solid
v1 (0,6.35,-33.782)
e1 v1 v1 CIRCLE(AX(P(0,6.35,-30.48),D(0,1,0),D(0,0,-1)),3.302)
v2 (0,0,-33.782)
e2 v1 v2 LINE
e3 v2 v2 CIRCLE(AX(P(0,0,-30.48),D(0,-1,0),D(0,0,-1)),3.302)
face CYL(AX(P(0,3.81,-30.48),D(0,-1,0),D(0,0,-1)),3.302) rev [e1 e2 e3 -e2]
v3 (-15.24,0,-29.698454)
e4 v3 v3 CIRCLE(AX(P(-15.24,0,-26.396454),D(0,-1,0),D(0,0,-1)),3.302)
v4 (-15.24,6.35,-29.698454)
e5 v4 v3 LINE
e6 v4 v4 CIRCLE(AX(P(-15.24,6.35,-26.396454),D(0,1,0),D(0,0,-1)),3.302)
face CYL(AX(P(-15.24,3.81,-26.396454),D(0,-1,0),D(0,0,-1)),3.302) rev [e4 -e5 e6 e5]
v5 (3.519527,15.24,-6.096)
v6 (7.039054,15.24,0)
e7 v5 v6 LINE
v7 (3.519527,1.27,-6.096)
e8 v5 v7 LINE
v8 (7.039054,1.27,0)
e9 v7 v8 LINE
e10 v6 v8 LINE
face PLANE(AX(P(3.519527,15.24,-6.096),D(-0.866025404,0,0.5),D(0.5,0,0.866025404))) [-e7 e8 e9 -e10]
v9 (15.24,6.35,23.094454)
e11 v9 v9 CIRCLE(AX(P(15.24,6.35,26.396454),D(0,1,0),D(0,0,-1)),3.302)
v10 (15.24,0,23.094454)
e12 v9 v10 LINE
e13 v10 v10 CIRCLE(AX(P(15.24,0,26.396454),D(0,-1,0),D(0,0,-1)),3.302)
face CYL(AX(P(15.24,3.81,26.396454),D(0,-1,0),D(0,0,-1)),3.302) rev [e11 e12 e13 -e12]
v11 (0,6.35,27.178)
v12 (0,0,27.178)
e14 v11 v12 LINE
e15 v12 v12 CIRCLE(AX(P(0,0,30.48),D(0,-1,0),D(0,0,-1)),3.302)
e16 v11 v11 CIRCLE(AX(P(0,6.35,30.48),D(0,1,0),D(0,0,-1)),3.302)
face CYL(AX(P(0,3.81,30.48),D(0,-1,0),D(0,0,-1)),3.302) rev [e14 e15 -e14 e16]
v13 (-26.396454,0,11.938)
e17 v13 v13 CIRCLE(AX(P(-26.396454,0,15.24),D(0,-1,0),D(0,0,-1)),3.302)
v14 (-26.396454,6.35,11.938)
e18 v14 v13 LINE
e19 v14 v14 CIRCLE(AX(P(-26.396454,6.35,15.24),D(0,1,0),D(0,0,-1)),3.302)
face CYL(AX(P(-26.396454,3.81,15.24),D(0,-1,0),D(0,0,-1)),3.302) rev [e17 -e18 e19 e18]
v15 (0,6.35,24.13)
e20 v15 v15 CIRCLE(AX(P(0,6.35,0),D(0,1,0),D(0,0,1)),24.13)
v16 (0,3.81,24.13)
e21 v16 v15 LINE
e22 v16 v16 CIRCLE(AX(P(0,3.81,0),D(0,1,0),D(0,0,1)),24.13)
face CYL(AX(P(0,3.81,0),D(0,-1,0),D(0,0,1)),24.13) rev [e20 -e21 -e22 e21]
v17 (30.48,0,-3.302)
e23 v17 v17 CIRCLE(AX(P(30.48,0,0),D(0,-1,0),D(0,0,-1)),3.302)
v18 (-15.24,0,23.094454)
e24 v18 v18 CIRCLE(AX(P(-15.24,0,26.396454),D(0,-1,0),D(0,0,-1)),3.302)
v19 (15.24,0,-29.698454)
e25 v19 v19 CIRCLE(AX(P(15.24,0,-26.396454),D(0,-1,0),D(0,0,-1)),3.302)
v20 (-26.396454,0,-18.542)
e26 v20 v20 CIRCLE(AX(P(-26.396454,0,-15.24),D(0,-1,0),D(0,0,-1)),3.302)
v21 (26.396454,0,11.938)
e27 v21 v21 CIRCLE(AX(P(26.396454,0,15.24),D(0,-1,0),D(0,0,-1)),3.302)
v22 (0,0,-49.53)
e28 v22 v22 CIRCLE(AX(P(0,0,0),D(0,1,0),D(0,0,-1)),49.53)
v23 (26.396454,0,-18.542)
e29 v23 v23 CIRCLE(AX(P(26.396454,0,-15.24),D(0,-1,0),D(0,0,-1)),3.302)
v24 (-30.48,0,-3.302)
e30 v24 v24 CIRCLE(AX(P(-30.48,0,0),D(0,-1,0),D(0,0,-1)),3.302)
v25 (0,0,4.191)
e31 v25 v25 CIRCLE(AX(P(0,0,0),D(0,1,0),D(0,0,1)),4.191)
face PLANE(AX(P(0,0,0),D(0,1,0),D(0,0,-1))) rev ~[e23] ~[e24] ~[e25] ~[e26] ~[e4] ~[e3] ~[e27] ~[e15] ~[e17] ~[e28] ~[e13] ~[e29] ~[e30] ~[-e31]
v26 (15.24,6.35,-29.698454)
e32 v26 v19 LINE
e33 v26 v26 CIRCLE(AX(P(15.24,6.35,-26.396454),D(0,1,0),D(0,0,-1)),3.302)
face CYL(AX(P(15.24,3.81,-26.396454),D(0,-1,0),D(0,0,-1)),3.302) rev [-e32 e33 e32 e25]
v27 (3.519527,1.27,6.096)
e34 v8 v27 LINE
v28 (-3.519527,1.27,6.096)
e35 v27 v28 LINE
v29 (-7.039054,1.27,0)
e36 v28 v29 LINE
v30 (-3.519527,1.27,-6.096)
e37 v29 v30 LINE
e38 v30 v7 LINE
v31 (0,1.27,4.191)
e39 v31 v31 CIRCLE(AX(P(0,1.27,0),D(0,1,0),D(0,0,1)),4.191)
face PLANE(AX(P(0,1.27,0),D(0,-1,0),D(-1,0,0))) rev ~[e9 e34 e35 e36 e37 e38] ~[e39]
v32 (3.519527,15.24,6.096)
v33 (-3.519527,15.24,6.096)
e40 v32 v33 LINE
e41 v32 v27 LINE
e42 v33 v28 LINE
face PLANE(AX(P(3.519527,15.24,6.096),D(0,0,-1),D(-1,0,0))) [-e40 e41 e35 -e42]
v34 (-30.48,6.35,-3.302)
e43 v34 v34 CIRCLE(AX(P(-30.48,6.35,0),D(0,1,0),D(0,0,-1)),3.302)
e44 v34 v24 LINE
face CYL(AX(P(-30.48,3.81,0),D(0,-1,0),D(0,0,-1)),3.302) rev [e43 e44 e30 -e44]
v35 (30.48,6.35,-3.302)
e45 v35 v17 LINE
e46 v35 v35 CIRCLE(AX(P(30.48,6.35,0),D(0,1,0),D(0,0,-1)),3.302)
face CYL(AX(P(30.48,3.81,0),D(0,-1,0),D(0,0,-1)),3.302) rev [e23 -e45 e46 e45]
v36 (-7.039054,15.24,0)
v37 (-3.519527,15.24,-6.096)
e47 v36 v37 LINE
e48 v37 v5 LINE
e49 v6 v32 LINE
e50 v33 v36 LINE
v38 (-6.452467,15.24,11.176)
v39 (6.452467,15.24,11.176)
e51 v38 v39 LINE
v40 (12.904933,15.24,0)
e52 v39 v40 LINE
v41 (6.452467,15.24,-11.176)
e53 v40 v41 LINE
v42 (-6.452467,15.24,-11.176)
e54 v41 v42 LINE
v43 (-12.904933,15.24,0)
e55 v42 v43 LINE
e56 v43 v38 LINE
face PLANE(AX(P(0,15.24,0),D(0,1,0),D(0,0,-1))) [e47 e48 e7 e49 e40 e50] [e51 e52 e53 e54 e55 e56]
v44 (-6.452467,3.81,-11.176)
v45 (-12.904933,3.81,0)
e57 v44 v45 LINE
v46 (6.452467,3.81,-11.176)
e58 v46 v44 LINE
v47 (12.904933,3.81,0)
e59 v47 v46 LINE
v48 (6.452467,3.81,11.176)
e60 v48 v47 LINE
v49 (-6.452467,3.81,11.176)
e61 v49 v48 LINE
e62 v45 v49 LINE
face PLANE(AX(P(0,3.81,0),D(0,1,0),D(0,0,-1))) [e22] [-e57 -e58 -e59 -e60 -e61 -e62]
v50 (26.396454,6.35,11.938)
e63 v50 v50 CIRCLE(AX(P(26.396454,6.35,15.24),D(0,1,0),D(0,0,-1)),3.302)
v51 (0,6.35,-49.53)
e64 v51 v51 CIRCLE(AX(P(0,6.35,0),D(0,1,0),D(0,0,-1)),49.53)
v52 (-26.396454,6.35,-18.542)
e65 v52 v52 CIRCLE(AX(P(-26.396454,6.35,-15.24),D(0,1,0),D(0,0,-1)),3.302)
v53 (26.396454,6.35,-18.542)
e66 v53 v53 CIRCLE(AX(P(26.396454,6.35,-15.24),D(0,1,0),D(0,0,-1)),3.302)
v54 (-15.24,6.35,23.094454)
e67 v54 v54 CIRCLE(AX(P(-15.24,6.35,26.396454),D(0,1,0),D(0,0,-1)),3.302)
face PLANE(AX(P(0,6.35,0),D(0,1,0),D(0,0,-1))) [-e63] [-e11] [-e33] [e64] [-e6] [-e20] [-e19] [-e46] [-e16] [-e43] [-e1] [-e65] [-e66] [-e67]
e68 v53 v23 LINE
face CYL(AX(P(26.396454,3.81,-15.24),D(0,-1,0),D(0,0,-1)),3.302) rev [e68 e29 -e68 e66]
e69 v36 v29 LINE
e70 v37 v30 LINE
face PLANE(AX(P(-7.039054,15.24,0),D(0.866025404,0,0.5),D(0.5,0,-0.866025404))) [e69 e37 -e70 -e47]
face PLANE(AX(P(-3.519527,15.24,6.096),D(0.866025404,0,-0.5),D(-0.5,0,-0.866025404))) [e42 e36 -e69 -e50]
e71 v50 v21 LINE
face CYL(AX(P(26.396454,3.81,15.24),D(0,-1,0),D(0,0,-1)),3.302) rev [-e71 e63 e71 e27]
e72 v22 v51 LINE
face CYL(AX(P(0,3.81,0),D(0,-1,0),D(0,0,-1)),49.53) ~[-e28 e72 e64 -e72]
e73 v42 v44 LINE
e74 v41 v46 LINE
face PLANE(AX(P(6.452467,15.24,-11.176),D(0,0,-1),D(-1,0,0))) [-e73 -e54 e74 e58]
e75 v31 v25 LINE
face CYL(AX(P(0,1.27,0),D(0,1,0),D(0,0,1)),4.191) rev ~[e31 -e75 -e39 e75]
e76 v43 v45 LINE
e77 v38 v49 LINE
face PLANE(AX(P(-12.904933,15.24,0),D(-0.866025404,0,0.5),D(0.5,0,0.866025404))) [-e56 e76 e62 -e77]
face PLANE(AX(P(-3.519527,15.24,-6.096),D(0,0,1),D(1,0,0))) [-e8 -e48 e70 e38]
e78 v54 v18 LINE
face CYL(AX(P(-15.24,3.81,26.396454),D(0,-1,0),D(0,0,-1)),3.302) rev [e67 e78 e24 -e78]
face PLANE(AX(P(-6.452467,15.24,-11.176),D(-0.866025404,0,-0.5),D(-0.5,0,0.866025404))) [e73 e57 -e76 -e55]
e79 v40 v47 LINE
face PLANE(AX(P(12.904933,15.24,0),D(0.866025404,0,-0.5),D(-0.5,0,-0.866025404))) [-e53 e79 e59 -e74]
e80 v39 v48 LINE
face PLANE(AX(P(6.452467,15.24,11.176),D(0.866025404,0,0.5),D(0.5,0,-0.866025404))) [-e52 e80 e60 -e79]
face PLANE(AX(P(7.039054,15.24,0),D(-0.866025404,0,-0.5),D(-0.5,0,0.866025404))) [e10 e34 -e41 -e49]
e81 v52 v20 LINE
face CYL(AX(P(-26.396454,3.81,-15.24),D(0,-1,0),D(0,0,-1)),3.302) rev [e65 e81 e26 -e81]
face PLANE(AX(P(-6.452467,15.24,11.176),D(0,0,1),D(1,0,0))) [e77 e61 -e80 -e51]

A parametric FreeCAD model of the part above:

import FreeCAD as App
import Part
import Sketcher
from FreeCAD import Vector
Q = App.Units.Quantity


def add_polygon(sketch, points):
    """Adds a closed chain of lines whose ends are joined by coincident constraints."""
    first, n = sketch.GeometryCount, len(points)
    for a, b in zip(points, points[1:] + points[:1]):
        sketch.addGeometry(Part.LineSegment(App.Vector(*a, 0), App.Vector(*b, 0)), False)
    for i in range(n):
        sketch.addConstraint(Sketcher.Constraint("Coincident", first + i, 2, first + (i + 1) % n, 1))

doc = App.newDocument("Part")
params = doc.addObject("Spreadsheet::Sheet", "Params")
for row, (alias, value) in enumerate([
    ("sketch1_diameter", "3.9 in"),
    ("pad1_length", "0.6 in"),
    ("pocket1_length", "0.55 in"),
    ("sketch3_diameter", "0.33 in"),
    ("sketch4_diameter", "3.1 in"),
    ("pocket3_length", "0.45 in"),
    ("sketch5_diameter", "0.26 in"),
    ("sketch6_diameter", "3.9 in"),
    ("sketch6_diameter2", "3.1 in"),
    ("pocket5_length", "0.45 in"),
    ("sketch7_diameter", "3.9 in"),
    ("sketch7_diameter2", "1.9 in"),
    ("sketch7_diameter3", "0.26 in"),
    ("pad2_length", "0.1 in"),
], start=1):
    params.set(f"A{row}", alias)
    params.set(f"B{row}", "=" + value)
    params.setAlias(f"B{row}", alias)

body = doc.addObject("PartDesign::Body", "Body")

# Sketch on XZ plane
sketch1 = body.newObject("Sketcher::SketchObject", "Sketch")
sketch1.AttachmentSupport = (doc.getObject("XZ_Plane"), [""])
sketch1.MapMode = "FlatFace"
sketch1.addGeometry(Part.Circle(Vector(0, 0, 0), Vector(0, 0, 1), 49.53), False)
sketch1.addConstraint([
    Sketcher.Constraint("Coincident", 0, 3, -1, 1),
    Sketcher.Constraint("Diameter", 0, Q("3.9 in")),
])
sketch1.setExpression("Constraints[1]", "Params.sketch1_diameter")
pad1 = body.newObject("PartDesign::Pad", "Pad")
pad1.Profile = sketch1
pad1.setExpression("Length", "Params.pad1_length")
pad1.Reversed = True

# Sketch on XZ plane
sketch2 = body.newObject("Sketcher::SketchObject", "Sketch001")
sketch2.AttachmentSupport = (doc.getObject("XZ_Plane"), [""])
sketch2.MapMode = "FlatFace"
sketch2.AttachmentOffset = App.Placement(Vector(0, 0, -0.6 * 25.4), App.Rotation())
add_polygon(sketch2, [(3.519527, -6.096), (-3.519527, -6.096), (-7.039054, 0), (-3.519527, 6.096), (3.519527, 6.096), (7.039054, 0)])  # lines 0-5
sketch2.addConstraint([
    Sketcher.Constraint("Horizontal", 0),
    Sketcher.Constraint("Horizontal", 3),
    Sketcher.Constraint("Symmetric", 0, 2, 3, 2, -1, 1),
    Sketcher.Constraint("Symmetric", 1, 2, 4, 2, -1, 1),
    Sketcher.Constraint("PointOnObject", 1, 2, -1),
    Sketcher.Constraint("Parallel", 2, 5),
    Sketcher.Constraint("Vertical", 0, 2, 2, 2),
    Sketcher.Constraint("Angle", 1, Q("120 deg")),
    Sketcher.Constraint("DistanceY", 0, 2, -1, 1, Q("0.24 in")),
    Sketcher.Constraint("DistanceX", 0, 2, 0, 1, Q("7.039054 mm")),
])
pocket1 = body.newObject("PartDesign::Pocket", "Pocket")
pocket1.Profile = sketch2
pocket1.setExpression("Length", "Params.pocket1_length")
pocket1.Reversed = True

# Sketch on XZ plane
sketch3 = body.newObject("Sketcher::SketchObject", "Sketch002")
sketch3.AttachmentSupport = (doc.getObject("XZ_Plane"), [""])
sketch3.MapMode = "FlatFace"
sketch3.AttachmentOffset = App.Placement(Vector(0, 0, -0.05 * 25.4), App.Rotation())
sketch3.addGeometry(Part.Circle(Vector(0, 0, 0), Vector(0, 0, 1), 4.191), False)
sketch3.addConstraint([
    Sketcher.Constraint("Coincident", 0, 3, -1, 1),
    Sketcher.Constraint("Diameter", 0, Q("0.33 in")),
])
sketch3.setExpression("Constraints[1]", "Params.sketch3_diameter")
pocket2 = body.newObject("PartDesign::Pocket", "Pocket001")
pocket2.Profile = sketch3
pocket2.Type = "ThroughAll"
pocket2.Reversed = True

# Sketch on XZ plane
sketch4 = body.newObject("Sketcher::SketchObject", "Sketch003")
sketch4.AttachmentSupport = (doc.getObject("XZ_Plane"), [""])
sketch4.MapMode = "FlatFace"
sketch4.AttachmentOffset = App.Placement(Vector(0, 0, -0.6 * 25.4), App.Rotation())
sketch4.addGeometry(Part.Circle(Vector(0, 0, 0), Vector(0, 0, 1), 39.37), False)  # 0
add_polygon(sketch4, [(6.452467, -11.176), (12.904933, 0), (6.452467, 11.176), (-6.452467, 11.176), (-12.904933, 0), (-6.452467, -11.176)])  # lines 1-6
sketch4.addConstraint([
    Sketcher.Constraint("Horizontal", 3),
    Sketcher.Constraint("Horizontal", 6),
    Sketcher.Constraint("Coincident", 0, 3, -1, 1),
    Sketcher.Constraint("Symmetric", 1, 2, 4, 2, -1, 1),
    Sketcher.Constraint("Symmetric", 2, 2, 5, 2, -1, 1),
    Sketcher.Constraint("PointOnObject", 1, 2, -1),
    Sketcher.Constraint("Parallel", 1, 4),
    Sketcher.Constraint("Vertical", 3, 2, 5, 2),
    Sketcher.Constraint("Diameter", 0, Q("3.1 in")),
    Sketcher.Constraint("Angle", 1, Q("60 deg")),
    Sketcher.Constraint("DistanceY", -1, 1, 2, 2, Q("0.44 in")),
    Sketcher.Constraint("DistanceX", 3, 2, 1, 2, Q("19.3574 mm")),
])
sketch4.setExpression("Constraints[14]", "Params.sketch4_diameter")
pocket3 = body.newObject("PartDesign::Pocket", "Pocket002")
pocket3.Profile = sketch4
pocket3.setExpression("Length", "Params.pocket3_length")
pocket3.Reversed = True

# Sketch on XZ plane
sketch5 = body.newObject("Sketcher::SketchObject", "Sketch004")
sketch5.AttachmentSupport = (doc.getObject("XZ_Plane"), [""])
sketch5.MapMode = "FlatFace"
sketch5.addGeometry([
    Part.Circle(Vector(0, 30.48, 0), Vector(0, 0, 1), 3.302),  # 0
    Part.Circle(Vector(15.24, 26.396454, 0), Vector(0, 0, 1), 3.302),  # 1
    Part.Circle(Vector(26.396454, 15.24, 0), Vector(0, 0, 1), 3.302),  # 2
    Part.Circle(Vector(30.48, 0, 0), Vector(0, 0, 1), 3.302),  # 3
    Part.Circle(Vector(26.396454, -15.24, 0), Vector(0, 0, 1), 3.302),  # 4
    Part.Circle(Vector(15.24, -26.396454, 0), Vector(0, 0, 1), 3.302),  # 5
    Part.Circle(Vector(0, -30.48, 0), Vector(0, 0, 1), 3.302),  # 6
    Part.Circle(Vector(-15.24, -26.396454, 0), Vector(0, 0, 1), 3.302),  # 7
    Part.Circle(Vector(-26.396454, -15.24, 0), Vector(0, 0, 1), 3.302),  # 8
    Part.Circle(Vector(-30.48, 0, 0), Vector(0, 0, 1), 3.302),  # 9
    Part.Circle(Vector(-26.396454, 15.24, 0), Vector(0, 0, 1), 3.302),  # 10
    Part.Circle(Vector(-15.24, 26.396454, 0), Vector(0, 0, 1), 3.302),  # 11
], False)
sketch5.addConstraint([
    Sketcher.Constraint("Equal", 0, 1),
    Sketcher.Constraint("Equal", 1, 2),
    Sketcher.Constraint("Equal", 2, 3),
    Sketcher.Constraint("Equal", 3, 4),
    Sketcher.Constraint("Equal", 4, 5),
    Sketcher.Constraint("Equal", 5, 6),
    Sketcher.Constraint("Equal", 6, 7),
    Sketcher.Constraint("Equal", 7, 8),
    Sketcher.Constraint("Equal", 8, 9),
    Sketcher.Constraint("Equal", 9, 10),
    Sketcher.Constraint("Equal", 10, 11),
    Sketcher.Constraint("Symmetric", 0, 3, 6, 3, -1, 1),
    Sketcher.Constraint("Symmetric", 1, 3, 7, 3, -1, 1),
    Sketcher.Constraint("Symmetric", 2, 3, 8, 3, -1, 1),
    Sketcher.Constraint("Symmetric", 3, 3, 9, 3, -1, 1),
    Sketcher.Constraint("Symmetric", 4, 3, 10, 3, -1, 1),
    Sketcher.Constraint("Symmetric", 5, 3, 11, 3, -1, 1),
    Sketcher.Constraint("Symmetric", 5, 3, 7, 3, -2),
    Sketcher.Constraint("Symmetric", 4, 3, 8, 3, -2),
    Sketcher.Constraint("PointOnObject", 0, 3, -2),
    Sketcher.Constraint("PointOnObject", 3, 3, -1),
    Sketcher.Constraint("Diameter", 0, Q("0.26 in")),
    Sketcher.Constraint("DistanceY", -1, 1, 0, 3, Q("1.2 in")),
    Sketcher.Constraint("DistanceX", -1, 1, 1, 3, Q("0.6 in")),
    Sketcher.Constraint("DistanceY", -1, 1, 2, 3, Q("0.6 in")),
    Sketcher.Constraint("DistanceX", -1, 1, 3, 3, Q("1.2 in")),
    Sketcher.Constraint("DistanceY", 5, 3, 1, 3, Q("52.792909 mm")),
    Sketcher.Constraint("DistanceX", 8, 3, 4, 3, Q("52.792909 mm")),
])
sketch5.setExpression("Constraints[21]", "Params.sketch5_diameter")
pocket4 = body.newObject("PartDesign::Pocket", "Pocket003")
pocket4.Profile = sketch5
pocket4.Type = "ThroughAll"

# Sketch on XZ plane
sketch6 = body.newObject("Sketcher::SketchObject", "Sketch005")
sketch6.AttachmentSupport = (doc.getObject("XZ_Plane"), [""])
sketch6.MapMode = "FlatFace"
sketch6.AttachmentOffset = App.Placement(Vector(0, 0, -0.6 * 25.4), App.Rotation())
sketch6.addGeometry([
    Part.Circle(Vector(0, 0, 0), Vector(0, 0, 1), 49.53),
    Part.Circle(Vector(0, 0, 0), Vector(0, 0, 1), 39.37),
], False)
sketch6.addConstraint([
    Sketcher.Constraint("Coincident", 0, 3, -1, 1),
    Sketcher.Constraint("Coincident", 1, 3, -1, 1),
    Sketcher.Constraint("Diameter", 0, Q("3.9 in")),
    Sketcher.Constraint("Diameter", 1, Q("3.1 in")),
])
sketch6.setExpression("Constraints[2]", "Params.sketch6_diameter")
sketch6.setExpression("Constraints[3]", "Params.sketch6_diameter2")
pocket5 = body.newObject("PartDesign::Pocket", "Pocket004")
pocket5.Profile = sketch6
pocket5.setExpression("Length", "Params.pocket5_length")
pocket5.Reversed = True

# Sketch on XZ plane
sketch7 = body.newObject("Sketcher::SketchObject", "Sketch006")
sketch7.AttachmentSupport = (doc.getObject("XZ_Plane"), [""])
sketch7.MapMode = "FlatFace"
sketch7.AttachmentOffset = App.Placement(Vector(0, 0, -0.15 * 25.4), App.Rotation())
sketch7.addGeometry([
    Part.Circle(Vector(0, 0, 0), Vector(0, 0, 1), 49.53),  # 0
    Part.Circle(Vector(26.396454, 15.24, 0), Vector(0, 0, 1), 3.302),  # 1
    Part.Circle(Vector(15.24, 26.396454, 0), Vector(0, 0, 1), 3.302),  # 2
    Part.Circle(Vector(0, 30.48, 0), Vector(0, 0, 1), 3.302),  # 3
    Part.Circle(Vector(30.48, 0, 0), Vector(0, 0, 1), 3.302),  # 4
    Part.Circle(Vector(26.396454, -15.24, 0), Vector(0, 0, 1), 3.302),  # 5
    Part.Circle(Vector(15.24, -26.396454, 0), Vector(0, 0, 1), 3.302),  # 6
    Part.Circle(Vector(-15.24, 26.396454, 0), Vector(0, 0, 1), 3.302),  # 7
    Part.Circle(Vector(0, 0, 0), Vector(0, 0, 1), 24.13),  # 8
    Part.Circle(Vector(-26.396454, 15.24, 0), Vector(0, 0, 1), 3.302),  # 9
    Part.Circle(Vector(-30.48, 0, 0), Vector(0, 0, 1), 3.302),  # 10
    Part.Circle(Vector(0, -30.48, 0), Vector(0, 0, 1), 3.302),  # 11
    Part.Circle(Vector(-15.24, -26.396454, 0), Vector(0, 0, 1), 3.302),  # 12
    Part.Circle(Vector(-26.396454, -15.24, 0), Vector(0, 0, 1), 3.302),  # 13
], False)
sketch7.addConstraint([
    Sketcher.Constraint("Coincident", 0, 3, -1, 1),
    Sketcher.Constraint("Coincident", 8, 3, -1, 1),
    Sketcher.Constraint("Equal", 1, 2),
    Sketcher.Constraint("Equal", 2, 3),
    Sketcher.Constraint("Equal", 3, 4),
    Sketcher.Constraint("Equal", 4, 5),
    Sketcher.Constraint("Equal", 5, 6),
    Sketcher.Constraint("Equal", 6, 7),
    Sketcher.Constraint("Equal", 7, 9),
    Sketcher.Constraint("Equal", 9, 10),
    Sketcher.Constraint("Equal", 10, 11),
    Sketcher.Constraint("Equal", 11, 12),
    Sketcher.Constraint("Equal", 12, 13),
    Sketcher.Constraint("Symmetric", 6, 3, 7, 3, -1, 1),
    Sketcher.Constraint("Symmetric", 5, 3, 9, 3, -1, 1),
    Sketcher.Constraint("Symmetric", 4, 3, 10, 3, -1, 1),
    Sketcher.Constraint("Symmetric", 3, 3, 11, 3, -1, 1),
    Sketcher.Constraint("Symmetric", 2, 3, 12, 3, -1, 1),
    Sketcher.Constraint("Symmetric", 1, 3, 13, 3, -1, 1),
    Sketcher.Constraint("Symmetric", 2, 3, 7, 3, -2),
    Sketcher.Constraint("Symmetric", 1, 3, 9, 3, -2),
    Sketcher.Constraint("PointOnObject", 3, 3, -2),
    Sketcher.Constraint("PointOnObject", 4, 3, -1),
    Sketcher.Constraint("Diameter", 0, Q("3.9 in")),
    Sketcher.Constraint("Diameter", 8, Q("1.9 in")),
    Sketcher.Constraint("Diameter", 1, Q("0.26 in")),
    Sketcher.Constraint("DistanceY", -1, 1, 1, 3, Q("0.6 in")),
    Sketcher.Constraint("DistanceX", -1, 1, 2, 3, Q("0.6 in")),
    Sketcher.Constraint("DistanceY", -1, 1, 3, 3, Q("1.2 in")),
    Sketcher.Constraint("DistanceX", -1, 1, 4, 3, Q("1.2 in")),
    Sketcher.Constraint("DistanceY", 6, 3, 2, 3, Q("52.792909 mm")),
    Sketcher.Constraint("DistanceX", -1, 1, 1, 3, Q("26.396454 mm")),
])
sketch7.setExpression("Constraints[23]", "Params.sketch7_diameter")
sketch7.setExpression("Constraints[24]", "Params.sketch7_diameter2")
sketch7.setExpression("Constraints[25]", "Params.sketch7_diameter3")
pad2 = body.newObject("PartDesign::Pad", "Pad001")
pad2.Profile = sketch7
pad2.setExpression("Length", "Params.pad2_length")
pad2.Reversed = True

doc.recompute()
